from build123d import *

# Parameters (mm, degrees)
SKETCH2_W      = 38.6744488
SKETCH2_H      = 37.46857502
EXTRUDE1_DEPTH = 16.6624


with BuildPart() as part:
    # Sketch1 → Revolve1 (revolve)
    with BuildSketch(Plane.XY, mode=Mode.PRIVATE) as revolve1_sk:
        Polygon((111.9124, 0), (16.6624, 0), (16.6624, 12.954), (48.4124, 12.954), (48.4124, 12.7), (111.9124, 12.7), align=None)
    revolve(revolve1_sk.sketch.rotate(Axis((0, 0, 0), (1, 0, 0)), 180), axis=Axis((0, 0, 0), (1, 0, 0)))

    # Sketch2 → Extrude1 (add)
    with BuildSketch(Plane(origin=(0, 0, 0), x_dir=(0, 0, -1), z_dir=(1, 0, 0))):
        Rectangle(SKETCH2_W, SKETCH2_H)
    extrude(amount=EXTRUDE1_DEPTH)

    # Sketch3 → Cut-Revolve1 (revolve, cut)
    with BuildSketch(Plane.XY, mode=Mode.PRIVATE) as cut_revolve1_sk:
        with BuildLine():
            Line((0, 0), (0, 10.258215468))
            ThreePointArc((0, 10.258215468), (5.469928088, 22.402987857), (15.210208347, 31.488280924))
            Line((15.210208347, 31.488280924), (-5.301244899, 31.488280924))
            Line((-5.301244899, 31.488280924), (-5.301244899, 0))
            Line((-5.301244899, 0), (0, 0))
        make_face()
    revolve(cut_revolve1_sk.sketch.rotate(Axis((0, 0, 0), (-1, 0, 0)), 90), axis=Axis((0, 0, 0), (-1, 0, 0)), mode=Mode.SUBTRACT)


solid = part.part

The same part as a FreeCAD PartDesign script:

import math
import FreeCAD as App
import Part
import Sketcher
Q = App.Units.Quantity

doc = App.newDocument("Part")
body = doc.addObject("PartDesign::Body", "Body")

# Sketch on XY plane
sketch1 = doc.addObject("Sketcher::SketchObject", "Sketch")
body.addObject(sketch1)
sketch1.AttachmentSupport = (doc.XY_Plane, [""])
sketch1.MapMode = "FlatFace"
sketch1.addGeometry(Part.LineSegment(App.Vector(16.66, 0, 0), App.Vector(111.91, 0, 0)), False)
sketch1.addGeometry(Part.LineSegment(App.Vector(111.91, 0, 0), App.Vector(111.91, 12.7, 0)), False)
sketch1.addGeometry(Part.LineSegment(App.Vector(111.91, 12.7, 0), App.Vector(48.41, 12.7, 0)), False)
sketch1.addGeometry(Part.LineSegment(App.Vector(48.41, 12.7, 0), App.Vector(48.41, 12.95, 0)), False)
sketch1.addGeometry(Part.LineSegment(App.Vector(48.41, 12.95, 0), App.Vector(16.66, 12.95, 0)), False)
sketch1.addGeometry(Part.LineSegment(App.Vector(16.66, 12.95, 0), App.Vector(16.66, 0, 0)), False)
sketch1.addConstraint(Sketcher.Constraint("Coincident", 0, 2, 1, 1))
sketch1.addConstraint(Sketcher.Constraint("Coincident", 1, 2, 2, 1))
sketch1.addConstraint(Sketcher.Constraint("Coincident", 2, 2, 3, 1))
sketch1.addConstraint(Sketcher.Constraint("Coincident", 3, 2, 4, 1))
sketch1.addConstraint(Sketcher.Constraint("Coincident", 4, 2, 5, 1))
sketch1.addConstraint(Sketcher.Constraint("Coincident", 5, 2, 0, 1))
sketch1.addConstraint(Sketcher.Constraint("Horizontal", 0))
sketch1.addConstraint(Sketcher.Constraint("Vertical", 1))
sketch1.addConstraint(Sketcher.Constraint("Horizontal", 2))
sketch1.addConstraint(Sketcher.Constraint("Vertical", 3))
sketch1.addConstraint(Sketcher.Constraint("Horizontal", 4))
sketch1.addConstraint(Sketcher.Constraint("Vertical", 5))
sketch1.addConstraint(Sketcher.Constraint("PointOnObject", 0, 2, -1))
sketch1.addConstraint(Sketcher.Constraint("DistanceX", 2, 2, 2, 1, Q("2.5 in")))
sketch1.addConstraint(Sketcher.Constraint("DistanceY", 1, 1, 1, 2, Q("0.5 in")))
sketch1.addConstraint(Sketcher.Constraint("DistanceX", 0, 1, 0, 2, Q("3.75 in")))
sketch1.addConstraint(Sketcher.Constraint("DistanceY", 3, 1, 3, 2, Q("0.01 in")))
sketch1.addConstraint(Sketcher.Constraint("DistanceX", -1, 1, 0, 2, Q("4.406 in")))
revolution = doc.addObject("PartDesign::Revolution", "Revolution")
body.addObject(revolution)
revolution.Profile = sketch1
revolution.ReferenceAxis = (sketch1, ["H_Axis"])
revolution.Angle = 360

# Sketch on YZ plane
sketch2 = doc.addObject("Sketcher::SketchObject", "Sketch001")
body.addObject(sketch2)
sketch2.AttachmentSupport = (doc.YZ_Plane, [""])
sketch2.MapMode = "FlatFace"
sketch2.addGeometry(Part.LineSegment(App.Vector(19, 19, 0), App.Vector(-19, 19, 0)), False)
sketch2.addGeometry(Part.LineSegment(App.Vector(-19, 19, 0), App.Vector(-19, -19, 0)), False)
sketch2.addGeometry(Part.LineSegment(App.Vector(-19, -19, 0), App.Vector(19, -19, 0)), False)
sketch2.addGeometry(Part.LineSegment(App.Vector(19, -19, 0), App.Vector(19, 19, 0)), False)
sketch2.addConstraint(Sketcher.Constraint("Coincident", 0, 2, 1, 1))
sketch2.addConstraint(Sketcher.Constraint("Coincident", 1, 2, 2, 1))
sketch2.addConstraint(Sketcher.Constraint("Coincident", 2, 2, 3, 1))
sketch2.addConstraint(Sketcher.Constraint("Coincident", 3, 2, 0, 1))
sketch2.addConstraint(Sketcher.Constraint("Horizontal", 0))
sketch2.addConstraint(Sketcher.Constraint("Vertical", 1))
sketch2.addConstraint(Sketcher.Constraint("Horizontal", 2))
sketch2.addConstraint(Sketcher.Constraint("Vertical", 3))
sketch2.addConstraint(Sketcher.Constraint("Symmetric", 0, 2, 2, 2, -1, 1))
sketch2.addConstraint(Sketcher.Constraint("DistanceY", 1, 2, 1, 1, Q("38.674449 mm")))
sketch2.addConstraint(Sketcher.Constraint("DistanceX", 0, 2, 0, 1, Q("37.468575 mm")))
pad1 = doc.addObject("PartDesign::Pad", "Pad")
body.addObject(pad1)
pad1.Profile = sketch2
pad1.Length = Q("0.656 in")

# Sketch on XY plane
sketch3 = doc.addObject("Sketcher::SketchObject", "Sketch002")
body.addObject(sketch3)
sketch3.AttachmentSupport = (doc.XY_Plane, [""])
sketch3.MapMode = "FlatFace"
sketch3.addGeometry(Part.LineSegment(App.Vector(0, 0, 0), App.Vector(0, 10, 0)), False)
sketch3.addGeometry(Part.ArcOfCircle(Part.Circle(App.Vector(33, 3, 0), App.Vector(0, 0, 1), 34), math.radians(122), math.radians(167)), False)
sketch3.addGeometry(Part.LineSegment(App.Vector(15, 31, 0), App.Vector(-5, 31, 0)), False)
sketch3.addGeometry(Part.LineSegment(App.Vector(-5, 31, 0), App.Vector(-5, 0, 0)), False)
sketch3.addGeometry(Part.LineSegment(App.Vector(-5, 0, 0), App.Vector(0, 0, 0)), False)
sketch3.addConstraint(Sketcher.Constraint("Coincident", 0, 2, 1, 2))
sketch3.addConstraint(Sketcher.Constraint("Coincident", 1, 1, 2, 1))
sketch3.addConstraint(Sketcher.Constraint("Coincident", 2, 2, 3, 1))
sketch3.addConstraint(Sketcher.Constraint("Coincident", 3, 2, 4, 1))
sketch3.addConstraint(Sketcher.Constraint("Coincident", 4, 2, 0, 1))
sketch3.addConstraint(Sketcher.Constraint("Vertical", 0))
sketch3.addConstraint(Sketcher.Constraint("Horizontal", 2))
sketch3.addConstraint(Sketcher.Constraint("Vertical", 3))
sketch3.addConstraint(Sketcher.Constraint("Horizontal", 4))
sketch3.addConstraint(Sketcher.Constraint("Coincident", 4, 2, -1, 1))
sketch3.addConstraint(Sketcher.Constraint("Radius", 1, Q("33.772735 mm")))
sketch3.addConstraint(Sketcher.Constraint("DistanceY", 3, 2, 3, 1, Q("31.488281 mm")))
sketch3.addConstraint(Sketcher.Constraint("DistanceX", 2, 2, 2, 1, Q("20.511453 mm")))
sketch3.addConstraint(Sketcher.Constraint("DistanceX", 4, 1, 4, 2, Q("5.301245 mm")))
sketch3.addConstraint(Sketcher.Constraint("DistanceY", 0, 1, 0, 2, Q("10.258215 mm")))
groove = doc.addObject("PartDesign::Groove", "Groove")
body.addObject(groove)
groove.Profile = sketch3
groove.ReferenceAxis = (sketch3, ["H_Axis"])
groove.Angle = 360

doc.recompute()
